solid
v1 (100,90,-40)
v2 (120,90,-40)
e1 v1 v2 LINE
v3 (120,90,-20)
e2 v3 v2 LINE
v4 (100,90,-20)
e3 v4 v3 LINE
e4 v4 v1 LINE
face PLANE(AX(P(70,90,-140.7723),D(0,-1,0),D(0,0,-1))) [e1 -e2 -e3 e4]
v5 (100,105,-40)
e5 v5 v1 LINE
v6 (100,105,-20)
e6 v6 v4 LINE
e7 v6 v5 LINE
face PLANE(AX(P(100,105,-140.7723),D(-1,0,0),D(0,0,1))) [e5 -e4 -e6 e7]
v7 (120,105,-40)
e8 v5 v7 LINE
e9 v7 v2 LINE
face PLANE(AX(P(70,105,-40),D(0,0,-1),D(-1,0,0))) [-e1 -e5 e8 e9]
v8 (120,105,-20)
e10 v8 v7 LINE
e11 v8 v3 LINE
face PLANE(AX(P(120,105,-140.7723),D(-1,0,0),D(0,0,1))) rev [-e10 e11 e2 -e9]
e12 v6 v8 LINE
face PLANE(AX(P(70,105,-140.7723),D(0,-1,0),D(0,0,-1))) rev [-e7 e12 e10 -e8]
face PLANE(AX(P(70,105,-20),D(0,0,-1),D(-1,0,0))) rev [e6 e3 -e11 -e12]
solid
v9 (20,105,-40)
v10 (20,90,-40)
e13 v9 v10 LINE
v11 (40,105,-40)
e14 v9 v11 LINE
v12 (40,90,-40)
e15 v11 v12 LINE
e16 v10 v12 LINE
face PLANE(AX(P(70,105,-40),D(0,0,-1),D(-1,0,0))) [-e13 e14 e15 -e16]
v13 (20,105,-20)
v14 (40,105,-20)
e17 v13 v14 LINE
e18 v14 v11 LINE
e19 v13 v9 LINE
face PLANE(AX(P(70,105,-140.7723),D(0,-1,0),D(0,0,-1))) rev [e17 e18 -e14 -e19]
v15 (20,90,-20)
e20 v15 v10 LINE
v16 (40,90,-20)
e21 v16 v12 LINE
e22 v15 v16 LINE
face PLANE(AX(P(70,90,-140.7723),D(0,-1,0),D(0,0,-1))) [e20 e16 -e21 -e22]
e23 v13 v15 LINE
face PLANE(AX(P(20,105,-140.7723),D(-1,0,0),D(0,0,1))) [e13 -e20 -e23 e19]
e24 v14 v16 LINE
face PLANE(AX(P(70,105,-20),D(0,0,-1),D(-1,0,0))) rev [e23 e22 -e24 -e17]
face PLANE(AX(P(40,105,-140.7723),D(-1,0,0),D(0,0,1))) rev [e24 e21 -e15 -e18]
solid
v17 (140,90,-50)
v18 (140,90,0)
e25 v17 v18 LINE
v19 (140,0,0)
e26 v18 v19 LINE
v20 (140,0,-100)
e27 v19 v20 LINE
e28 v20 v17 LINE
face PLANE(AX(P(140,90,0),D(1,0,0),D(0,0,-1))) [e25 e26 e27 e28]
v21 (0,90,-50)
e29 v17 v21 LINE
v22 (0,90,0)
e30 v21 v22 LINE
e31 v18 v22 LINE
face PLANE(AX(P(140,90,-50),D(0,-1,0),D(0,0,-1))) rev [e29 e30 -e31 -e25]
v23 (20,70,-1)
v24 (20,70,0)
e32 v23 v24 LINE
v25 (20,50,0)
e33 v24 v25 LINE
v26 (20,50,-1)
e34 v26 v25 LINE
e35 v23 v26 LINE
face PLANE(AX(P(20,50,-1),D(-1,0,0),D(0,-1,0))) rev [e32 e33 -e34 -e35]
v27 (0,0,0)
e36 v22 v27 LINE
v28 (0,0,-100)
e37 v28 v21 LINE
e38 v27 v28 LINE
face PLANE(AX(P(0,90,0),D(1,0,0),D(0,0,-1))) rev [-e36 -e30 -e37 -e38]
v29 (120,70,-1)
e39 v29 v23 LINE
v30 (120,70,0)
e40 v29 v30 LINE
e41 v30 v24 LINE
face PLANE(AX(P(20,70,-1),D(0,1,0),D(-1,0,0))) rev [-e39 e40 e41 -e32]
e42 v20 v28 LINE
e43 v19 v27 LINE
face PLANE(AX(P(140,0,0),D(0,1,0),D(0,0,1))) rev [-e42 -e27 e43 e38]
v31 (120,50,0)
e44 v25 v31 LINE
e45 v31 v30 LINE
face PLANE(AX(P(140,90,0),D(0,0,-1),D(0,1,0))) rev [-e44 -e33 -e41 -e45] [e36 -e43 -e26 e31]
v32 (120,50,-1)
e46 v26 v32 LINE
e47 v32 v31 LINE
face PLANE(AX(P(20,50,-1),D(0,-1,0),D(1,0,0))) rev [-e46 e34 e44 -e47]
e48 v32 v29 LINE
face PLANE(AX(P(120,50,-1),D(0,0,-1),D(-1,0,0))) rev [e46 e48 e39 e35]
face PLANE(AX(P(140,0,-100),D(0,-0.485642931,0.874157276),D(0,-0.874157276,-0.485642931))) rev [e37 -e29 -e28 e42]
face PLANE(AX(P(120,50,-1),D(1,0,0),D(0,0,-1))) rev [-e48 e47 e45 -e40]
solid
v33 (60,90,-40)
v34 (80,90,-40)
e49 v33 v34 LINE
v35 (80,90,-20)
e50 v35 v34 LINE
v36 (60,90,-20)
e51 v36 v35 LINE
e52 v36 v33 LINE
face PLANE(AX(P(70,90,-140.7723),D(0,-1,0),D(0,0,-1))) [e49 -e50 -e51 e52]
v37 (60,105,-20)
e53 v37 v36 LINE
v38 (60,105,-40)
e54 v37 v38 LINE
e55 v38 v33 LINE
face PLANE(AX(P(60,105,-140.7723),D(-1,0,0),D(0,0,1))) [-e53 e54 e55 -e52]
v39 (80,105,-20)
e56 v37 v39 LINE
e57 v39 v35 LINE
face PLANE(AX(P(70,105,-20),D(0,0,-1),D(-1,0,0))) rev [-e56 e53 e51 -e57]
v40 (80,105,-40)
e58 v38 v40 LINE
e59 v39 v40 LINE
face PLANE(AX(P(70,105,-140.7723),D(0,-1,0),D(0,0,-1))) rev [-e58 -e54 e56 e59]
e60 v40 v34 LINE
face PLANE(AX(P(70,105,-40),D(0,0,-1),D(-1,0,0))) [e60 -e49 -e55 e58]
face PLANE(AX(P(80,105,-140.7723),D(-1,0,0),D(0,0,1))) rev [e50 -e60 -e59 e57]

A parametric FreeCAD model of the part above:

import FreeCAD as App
import Part
import Sketcher

V = App.Vector


def add_polygon(sketch, points):
    """Adds a closed chain of lines whose ends are joined by coincident constraints."""
    first, n = sketch.GeometryCount, len(points)
    for a, b in zip(points, points[1:] + points[:1]):
        sketch.addGeometry(Part.LineSegment(App.Vector(*a, 0), App.Vector(*b, 0)), False)
    for i in range(n):
        sketch.addConstraint(Sketcher.Constraint("Coincident", first + i, 2, first + (i + 1) % n, 1))

doc = App.newDocument("Part")
params = doc.addObject("Spreadsheet::Sheet", "Params")
for row, (alias, value) in enumerate([
    ("sketch1_width", "90 mm"),
    ("sketch1_height", "100 mm"),
    ("sketch1_height2", "50 mm"),
    ("pad1_length", "140 mm"),
    ("sketch2_width", "100 mm"),
    ("sketch2_height", "20 mm"),
    ("pocket1_length", "1 mm"),
    ("sketch3_width", "20 mm"),
    ("pad2_length", "15 mm"),
    ("sketch4_width", "20 mm"),
    ("pad3_length", "15 mm"),
    ("sketch5_width", "20 mm"),
    ("pad4_length", "15 mm"),
], start=1):
    params.set(f"A{row}", alias)
    params.set(f"B{row}", "=" + value)
    params.setAlias(f"B{row}", alias)

body = doc.addObject("PartDesign::Body", "Body")

# Sketch on YZ plane
sketch1 = doc.addObject("Sketcher::SketchObject", "Sketch")
body.addObject(sketch1)
sketch1.AttachmentSupport = (doc.YZ_Plane, [""])
sketch1.MapMode = "FlatFace"
add_polygon(sketch1, [(90, 0), (0, 0), (0, -100), (90, -50)])  # lines 0-3
sketch1.addConstraint(Sketcher.Constraint("Horizontal", 0))
sketch1.addConstraint(Sketcher.Constraint("Vertical", 1))
sketch1.addConstraint(Sketcher.Constraint("Vertical", 3))
sketch1.addConstraint(Sketcher.Constraint("Coincident", 0, 2, -1, 1))
sketch1.addConstraint(Sketcher.Constraint("DistanceX", 0, 2, 0, 1, 90.0))
sketch1.addConstraint(Sketcher.Constraint("DistanceY", 1, 2, 1, 1, 100.0))
sketch1.addConstraint(Sketcher.Constraint("DistanceY", 3, 1, 3, 2, 50.0))
sketch1.setExpression("Constraints[8]", "Params.sketch1_width")
sketch1.setExpression("Constraints[9]", "Params.sketch1_height")
sketch1.setExpression("Constraints[10]", "Params.sketch1_height2")
pad1 = doc.addObject("PartDesign::Pad", "Pad")
body.addObject(pad1)
pad1.Profile = sketch1
pad1.setExpression("Length", "Params.pad1_length")

# Sketch on XY plane
sketch2 = doc.addObject("Sketcher::SketchObject", "Sketch001")
body.addObject(sketch2)
sketch2.AttachmentSupport = (doc.XY_Plane, [""])
sketch2.MapMode = "FlatFace"
add_polygon(sketch2, [(20, 70), (20, 50), (120, 50), (120, 70)])  # lines 0-3
sketch2.addConstraint(Sketcher.Constraint("Vertical", 0))
sketch2.addConstraint(Sketcher.Constraint("Horizontal", 1))
sketch2.addConstraint(Sketcher.Constraint("Vertical", 2))
sketch2.addConstraint(Sketcher.Constraint("Horizontal", 3))
sketch2.addConstraint(Sketcher.Constraint("DistanceX", 1, 1, 1, 2, 100.0))
sketch2.addConstraint(Sketcher.Constraint("DistanceY", 0, 2, 0, 1, 20.0))
sketch2.addConstraint(Sketcher.Constraint("DistanceX", -1, 1, 0, 2, 20.0))
sketch2.addConstraint(Sketcher.Constraint("DistanceY", -1, 1, 0, 2, 50.0))
sketch2.setExpression("Constraints[8]", "Params.sketch2_width")
sketch2.setExpression("Constraints[9]", "Params.sketch2_height")
pocket1 = doc.addObject("PartDesign::Pocket", "Pocket")
body.addObject(pocket1)
pocket1.Profile = sketch2
pocket1.setExpression("Length", "Params.pocket1_length")
body2 = doc.addObject("PartDesign::Body", "Body001")

# Sketch on XZ plane
sketch3 = doc.addObject("Sketcher::SketchObject", "Sketch002")
body2.addObject(sketch3)
sketch3.AttachmentSupport = (doc.getObject("XZ_Plane001"), [""])
sketch3.MapMode = "FlatFace"
sketch3.AttachmentOffset = App.Placement(V(0, 0, -90), App.Rotation())
add_polygon(sketch3, [(40, -20), (40, -40), (20, -40), (20, -20)])  # lines 0-3
sketch3.addConstraint(Sketcher.Constraint("Vertical", 0))
sketch3.addConstraint(Sketcher.Constraint("Horizontal", 1))
sketch3.addConstraint(Sketcher.Constraint("Vertical", 2))
sketch3.addConstraint(Sketcher.Constraint("Horizontal", 3))
sketch3.addConstraint(Sketcher.Constraint("Equal", 3, 0))
sketch3.addConstraint(Sketcher.Constraint("DistanceX", 1, 2, 1, 1, 20.0))
sketch3.addConstraint(Sketcher.Constraint("DistanceX", -1, 1, 0, 2, 40.0))
sketch3.addConstraint(Sketcher.Constraint("DistanceY", 0, 2, -1, 1, 40.0))
sketch3.setExpression("Constraints[9]", "Params.sketch3_width")
pad2 = doc.addObject("PartDesign::Pad", "Pad001")
body2.addObject(pad2)
pad2.Profile = sketch3
pad2.setExpression("Length", "Params.pad2_length")
pad2.Reversed = True
body3 = doc.addObject("PartDesign::Body", "Body002")

# Sketch on XZ plane
sketch4 = doc.addObject("Sketcher::SketchObject", "Sketch003")
body3.addObject(sketch4)
sketch4.AttachmentSupport = (doc.getObject("XZ_Plane002"), [""])
sketch4.MapMode = "FlatFace"
sketch4.AttachmentOffset = App.Placement(V(0, 0, -90), App.Rotation())
add_polygon(sketch4, [(80, -20), (80, -40), (60, -40), (60, -20)])  # lines 0-3
sketch4.addConstraint(Sketcher.Constraint("Vertical", 0))
sketch4.addConstraint(Sketcher.Constraint("Horizontal", 1))
sketch4.addConstraint(Sketcher.Constraint("Vertical", 2))
sketch4.addConstraint(Sketcher.Constraint("Horizontal", 3))
sketch4.addConstraint(Sketcher.Constraint("Equal", 3, 0))
sketch4.addConstraint(Sketcher.Constraint("DistanceX", 1, 2, 1, 1, 20.0))
sketch4.addConstraint(Sketcher.Constraint("DistanceX", -1, 1, 0, 2, 80.0))
sketch4.addConstraint(Sketcher.Constraint("DistanceY", 0, 2, -1, 1, 40.0))
sketch4.setExpression("Constraints[9]", "Params.sketch4_width")
pad3 = doc.addObject("PartDesign::Pad", "Pad002")
body3.addObject(pad3)
pad3.Profile = sketch4
pad3.setExpression("Length", "Params.pad3_length")
pad3.Reversed = True
body4 = doc.addObject("PartDesign::Body", "Body003")

# Sketch on XZ plane
sketch5 = doc.addObject("Sketcher::SketchObject", "Sketch004")
body4.addObject(sketch5)
sketch5.AttachmentSupport = (doc.getObject("XZ_Plane003"), [""])
sketch5.MapMode = "FlatFace"
sketch5.AttachmentOffset = App.Placement(V(0, 0, -90), App.Rotation())
add_polygon(sketch5, [(120, -20), (120, -40), (100, -40), (100, -20)])  # lines 0-3
sketch5.addConstraint(Sketcher.Constraint("Vertical", 0))
sketch5.addConstraint(Sketcher.Constraint("Horizontal", 1))
sketch5.addConstraint(Sketcher.Constraint("Vertical", 2))
sketch5.addConstraint(Sketcher.Constraint("Horizontal", 3))
sketch5.addConstraint(Sketcher.Constraint("Equal", 3, 0))
sketch5.addConstraint(Sketcher.Constraint("DistanceX", 1, 2, 1, 1, 20.0))
sketch5.addConstraint(Sketcher.Constraint("DistanceX", -1, 1, 0, 2, 120.0))
sketch5.addConstraint(Sketcher.Constraint("DistanceY", 0, 2, -1, 1, 40.0))
sketch5.setExpression("Constraints[9]", "Params.sketch5_width")
pad4 = doc.addObject("PartDesign::Pad", "Pad003")
body4.addObject(pad4)
pad4.Profile = sketch5
pad4.setExpression("Length", "Params.pad4_length")
pad4.Reversed = True

doc.recompute()
